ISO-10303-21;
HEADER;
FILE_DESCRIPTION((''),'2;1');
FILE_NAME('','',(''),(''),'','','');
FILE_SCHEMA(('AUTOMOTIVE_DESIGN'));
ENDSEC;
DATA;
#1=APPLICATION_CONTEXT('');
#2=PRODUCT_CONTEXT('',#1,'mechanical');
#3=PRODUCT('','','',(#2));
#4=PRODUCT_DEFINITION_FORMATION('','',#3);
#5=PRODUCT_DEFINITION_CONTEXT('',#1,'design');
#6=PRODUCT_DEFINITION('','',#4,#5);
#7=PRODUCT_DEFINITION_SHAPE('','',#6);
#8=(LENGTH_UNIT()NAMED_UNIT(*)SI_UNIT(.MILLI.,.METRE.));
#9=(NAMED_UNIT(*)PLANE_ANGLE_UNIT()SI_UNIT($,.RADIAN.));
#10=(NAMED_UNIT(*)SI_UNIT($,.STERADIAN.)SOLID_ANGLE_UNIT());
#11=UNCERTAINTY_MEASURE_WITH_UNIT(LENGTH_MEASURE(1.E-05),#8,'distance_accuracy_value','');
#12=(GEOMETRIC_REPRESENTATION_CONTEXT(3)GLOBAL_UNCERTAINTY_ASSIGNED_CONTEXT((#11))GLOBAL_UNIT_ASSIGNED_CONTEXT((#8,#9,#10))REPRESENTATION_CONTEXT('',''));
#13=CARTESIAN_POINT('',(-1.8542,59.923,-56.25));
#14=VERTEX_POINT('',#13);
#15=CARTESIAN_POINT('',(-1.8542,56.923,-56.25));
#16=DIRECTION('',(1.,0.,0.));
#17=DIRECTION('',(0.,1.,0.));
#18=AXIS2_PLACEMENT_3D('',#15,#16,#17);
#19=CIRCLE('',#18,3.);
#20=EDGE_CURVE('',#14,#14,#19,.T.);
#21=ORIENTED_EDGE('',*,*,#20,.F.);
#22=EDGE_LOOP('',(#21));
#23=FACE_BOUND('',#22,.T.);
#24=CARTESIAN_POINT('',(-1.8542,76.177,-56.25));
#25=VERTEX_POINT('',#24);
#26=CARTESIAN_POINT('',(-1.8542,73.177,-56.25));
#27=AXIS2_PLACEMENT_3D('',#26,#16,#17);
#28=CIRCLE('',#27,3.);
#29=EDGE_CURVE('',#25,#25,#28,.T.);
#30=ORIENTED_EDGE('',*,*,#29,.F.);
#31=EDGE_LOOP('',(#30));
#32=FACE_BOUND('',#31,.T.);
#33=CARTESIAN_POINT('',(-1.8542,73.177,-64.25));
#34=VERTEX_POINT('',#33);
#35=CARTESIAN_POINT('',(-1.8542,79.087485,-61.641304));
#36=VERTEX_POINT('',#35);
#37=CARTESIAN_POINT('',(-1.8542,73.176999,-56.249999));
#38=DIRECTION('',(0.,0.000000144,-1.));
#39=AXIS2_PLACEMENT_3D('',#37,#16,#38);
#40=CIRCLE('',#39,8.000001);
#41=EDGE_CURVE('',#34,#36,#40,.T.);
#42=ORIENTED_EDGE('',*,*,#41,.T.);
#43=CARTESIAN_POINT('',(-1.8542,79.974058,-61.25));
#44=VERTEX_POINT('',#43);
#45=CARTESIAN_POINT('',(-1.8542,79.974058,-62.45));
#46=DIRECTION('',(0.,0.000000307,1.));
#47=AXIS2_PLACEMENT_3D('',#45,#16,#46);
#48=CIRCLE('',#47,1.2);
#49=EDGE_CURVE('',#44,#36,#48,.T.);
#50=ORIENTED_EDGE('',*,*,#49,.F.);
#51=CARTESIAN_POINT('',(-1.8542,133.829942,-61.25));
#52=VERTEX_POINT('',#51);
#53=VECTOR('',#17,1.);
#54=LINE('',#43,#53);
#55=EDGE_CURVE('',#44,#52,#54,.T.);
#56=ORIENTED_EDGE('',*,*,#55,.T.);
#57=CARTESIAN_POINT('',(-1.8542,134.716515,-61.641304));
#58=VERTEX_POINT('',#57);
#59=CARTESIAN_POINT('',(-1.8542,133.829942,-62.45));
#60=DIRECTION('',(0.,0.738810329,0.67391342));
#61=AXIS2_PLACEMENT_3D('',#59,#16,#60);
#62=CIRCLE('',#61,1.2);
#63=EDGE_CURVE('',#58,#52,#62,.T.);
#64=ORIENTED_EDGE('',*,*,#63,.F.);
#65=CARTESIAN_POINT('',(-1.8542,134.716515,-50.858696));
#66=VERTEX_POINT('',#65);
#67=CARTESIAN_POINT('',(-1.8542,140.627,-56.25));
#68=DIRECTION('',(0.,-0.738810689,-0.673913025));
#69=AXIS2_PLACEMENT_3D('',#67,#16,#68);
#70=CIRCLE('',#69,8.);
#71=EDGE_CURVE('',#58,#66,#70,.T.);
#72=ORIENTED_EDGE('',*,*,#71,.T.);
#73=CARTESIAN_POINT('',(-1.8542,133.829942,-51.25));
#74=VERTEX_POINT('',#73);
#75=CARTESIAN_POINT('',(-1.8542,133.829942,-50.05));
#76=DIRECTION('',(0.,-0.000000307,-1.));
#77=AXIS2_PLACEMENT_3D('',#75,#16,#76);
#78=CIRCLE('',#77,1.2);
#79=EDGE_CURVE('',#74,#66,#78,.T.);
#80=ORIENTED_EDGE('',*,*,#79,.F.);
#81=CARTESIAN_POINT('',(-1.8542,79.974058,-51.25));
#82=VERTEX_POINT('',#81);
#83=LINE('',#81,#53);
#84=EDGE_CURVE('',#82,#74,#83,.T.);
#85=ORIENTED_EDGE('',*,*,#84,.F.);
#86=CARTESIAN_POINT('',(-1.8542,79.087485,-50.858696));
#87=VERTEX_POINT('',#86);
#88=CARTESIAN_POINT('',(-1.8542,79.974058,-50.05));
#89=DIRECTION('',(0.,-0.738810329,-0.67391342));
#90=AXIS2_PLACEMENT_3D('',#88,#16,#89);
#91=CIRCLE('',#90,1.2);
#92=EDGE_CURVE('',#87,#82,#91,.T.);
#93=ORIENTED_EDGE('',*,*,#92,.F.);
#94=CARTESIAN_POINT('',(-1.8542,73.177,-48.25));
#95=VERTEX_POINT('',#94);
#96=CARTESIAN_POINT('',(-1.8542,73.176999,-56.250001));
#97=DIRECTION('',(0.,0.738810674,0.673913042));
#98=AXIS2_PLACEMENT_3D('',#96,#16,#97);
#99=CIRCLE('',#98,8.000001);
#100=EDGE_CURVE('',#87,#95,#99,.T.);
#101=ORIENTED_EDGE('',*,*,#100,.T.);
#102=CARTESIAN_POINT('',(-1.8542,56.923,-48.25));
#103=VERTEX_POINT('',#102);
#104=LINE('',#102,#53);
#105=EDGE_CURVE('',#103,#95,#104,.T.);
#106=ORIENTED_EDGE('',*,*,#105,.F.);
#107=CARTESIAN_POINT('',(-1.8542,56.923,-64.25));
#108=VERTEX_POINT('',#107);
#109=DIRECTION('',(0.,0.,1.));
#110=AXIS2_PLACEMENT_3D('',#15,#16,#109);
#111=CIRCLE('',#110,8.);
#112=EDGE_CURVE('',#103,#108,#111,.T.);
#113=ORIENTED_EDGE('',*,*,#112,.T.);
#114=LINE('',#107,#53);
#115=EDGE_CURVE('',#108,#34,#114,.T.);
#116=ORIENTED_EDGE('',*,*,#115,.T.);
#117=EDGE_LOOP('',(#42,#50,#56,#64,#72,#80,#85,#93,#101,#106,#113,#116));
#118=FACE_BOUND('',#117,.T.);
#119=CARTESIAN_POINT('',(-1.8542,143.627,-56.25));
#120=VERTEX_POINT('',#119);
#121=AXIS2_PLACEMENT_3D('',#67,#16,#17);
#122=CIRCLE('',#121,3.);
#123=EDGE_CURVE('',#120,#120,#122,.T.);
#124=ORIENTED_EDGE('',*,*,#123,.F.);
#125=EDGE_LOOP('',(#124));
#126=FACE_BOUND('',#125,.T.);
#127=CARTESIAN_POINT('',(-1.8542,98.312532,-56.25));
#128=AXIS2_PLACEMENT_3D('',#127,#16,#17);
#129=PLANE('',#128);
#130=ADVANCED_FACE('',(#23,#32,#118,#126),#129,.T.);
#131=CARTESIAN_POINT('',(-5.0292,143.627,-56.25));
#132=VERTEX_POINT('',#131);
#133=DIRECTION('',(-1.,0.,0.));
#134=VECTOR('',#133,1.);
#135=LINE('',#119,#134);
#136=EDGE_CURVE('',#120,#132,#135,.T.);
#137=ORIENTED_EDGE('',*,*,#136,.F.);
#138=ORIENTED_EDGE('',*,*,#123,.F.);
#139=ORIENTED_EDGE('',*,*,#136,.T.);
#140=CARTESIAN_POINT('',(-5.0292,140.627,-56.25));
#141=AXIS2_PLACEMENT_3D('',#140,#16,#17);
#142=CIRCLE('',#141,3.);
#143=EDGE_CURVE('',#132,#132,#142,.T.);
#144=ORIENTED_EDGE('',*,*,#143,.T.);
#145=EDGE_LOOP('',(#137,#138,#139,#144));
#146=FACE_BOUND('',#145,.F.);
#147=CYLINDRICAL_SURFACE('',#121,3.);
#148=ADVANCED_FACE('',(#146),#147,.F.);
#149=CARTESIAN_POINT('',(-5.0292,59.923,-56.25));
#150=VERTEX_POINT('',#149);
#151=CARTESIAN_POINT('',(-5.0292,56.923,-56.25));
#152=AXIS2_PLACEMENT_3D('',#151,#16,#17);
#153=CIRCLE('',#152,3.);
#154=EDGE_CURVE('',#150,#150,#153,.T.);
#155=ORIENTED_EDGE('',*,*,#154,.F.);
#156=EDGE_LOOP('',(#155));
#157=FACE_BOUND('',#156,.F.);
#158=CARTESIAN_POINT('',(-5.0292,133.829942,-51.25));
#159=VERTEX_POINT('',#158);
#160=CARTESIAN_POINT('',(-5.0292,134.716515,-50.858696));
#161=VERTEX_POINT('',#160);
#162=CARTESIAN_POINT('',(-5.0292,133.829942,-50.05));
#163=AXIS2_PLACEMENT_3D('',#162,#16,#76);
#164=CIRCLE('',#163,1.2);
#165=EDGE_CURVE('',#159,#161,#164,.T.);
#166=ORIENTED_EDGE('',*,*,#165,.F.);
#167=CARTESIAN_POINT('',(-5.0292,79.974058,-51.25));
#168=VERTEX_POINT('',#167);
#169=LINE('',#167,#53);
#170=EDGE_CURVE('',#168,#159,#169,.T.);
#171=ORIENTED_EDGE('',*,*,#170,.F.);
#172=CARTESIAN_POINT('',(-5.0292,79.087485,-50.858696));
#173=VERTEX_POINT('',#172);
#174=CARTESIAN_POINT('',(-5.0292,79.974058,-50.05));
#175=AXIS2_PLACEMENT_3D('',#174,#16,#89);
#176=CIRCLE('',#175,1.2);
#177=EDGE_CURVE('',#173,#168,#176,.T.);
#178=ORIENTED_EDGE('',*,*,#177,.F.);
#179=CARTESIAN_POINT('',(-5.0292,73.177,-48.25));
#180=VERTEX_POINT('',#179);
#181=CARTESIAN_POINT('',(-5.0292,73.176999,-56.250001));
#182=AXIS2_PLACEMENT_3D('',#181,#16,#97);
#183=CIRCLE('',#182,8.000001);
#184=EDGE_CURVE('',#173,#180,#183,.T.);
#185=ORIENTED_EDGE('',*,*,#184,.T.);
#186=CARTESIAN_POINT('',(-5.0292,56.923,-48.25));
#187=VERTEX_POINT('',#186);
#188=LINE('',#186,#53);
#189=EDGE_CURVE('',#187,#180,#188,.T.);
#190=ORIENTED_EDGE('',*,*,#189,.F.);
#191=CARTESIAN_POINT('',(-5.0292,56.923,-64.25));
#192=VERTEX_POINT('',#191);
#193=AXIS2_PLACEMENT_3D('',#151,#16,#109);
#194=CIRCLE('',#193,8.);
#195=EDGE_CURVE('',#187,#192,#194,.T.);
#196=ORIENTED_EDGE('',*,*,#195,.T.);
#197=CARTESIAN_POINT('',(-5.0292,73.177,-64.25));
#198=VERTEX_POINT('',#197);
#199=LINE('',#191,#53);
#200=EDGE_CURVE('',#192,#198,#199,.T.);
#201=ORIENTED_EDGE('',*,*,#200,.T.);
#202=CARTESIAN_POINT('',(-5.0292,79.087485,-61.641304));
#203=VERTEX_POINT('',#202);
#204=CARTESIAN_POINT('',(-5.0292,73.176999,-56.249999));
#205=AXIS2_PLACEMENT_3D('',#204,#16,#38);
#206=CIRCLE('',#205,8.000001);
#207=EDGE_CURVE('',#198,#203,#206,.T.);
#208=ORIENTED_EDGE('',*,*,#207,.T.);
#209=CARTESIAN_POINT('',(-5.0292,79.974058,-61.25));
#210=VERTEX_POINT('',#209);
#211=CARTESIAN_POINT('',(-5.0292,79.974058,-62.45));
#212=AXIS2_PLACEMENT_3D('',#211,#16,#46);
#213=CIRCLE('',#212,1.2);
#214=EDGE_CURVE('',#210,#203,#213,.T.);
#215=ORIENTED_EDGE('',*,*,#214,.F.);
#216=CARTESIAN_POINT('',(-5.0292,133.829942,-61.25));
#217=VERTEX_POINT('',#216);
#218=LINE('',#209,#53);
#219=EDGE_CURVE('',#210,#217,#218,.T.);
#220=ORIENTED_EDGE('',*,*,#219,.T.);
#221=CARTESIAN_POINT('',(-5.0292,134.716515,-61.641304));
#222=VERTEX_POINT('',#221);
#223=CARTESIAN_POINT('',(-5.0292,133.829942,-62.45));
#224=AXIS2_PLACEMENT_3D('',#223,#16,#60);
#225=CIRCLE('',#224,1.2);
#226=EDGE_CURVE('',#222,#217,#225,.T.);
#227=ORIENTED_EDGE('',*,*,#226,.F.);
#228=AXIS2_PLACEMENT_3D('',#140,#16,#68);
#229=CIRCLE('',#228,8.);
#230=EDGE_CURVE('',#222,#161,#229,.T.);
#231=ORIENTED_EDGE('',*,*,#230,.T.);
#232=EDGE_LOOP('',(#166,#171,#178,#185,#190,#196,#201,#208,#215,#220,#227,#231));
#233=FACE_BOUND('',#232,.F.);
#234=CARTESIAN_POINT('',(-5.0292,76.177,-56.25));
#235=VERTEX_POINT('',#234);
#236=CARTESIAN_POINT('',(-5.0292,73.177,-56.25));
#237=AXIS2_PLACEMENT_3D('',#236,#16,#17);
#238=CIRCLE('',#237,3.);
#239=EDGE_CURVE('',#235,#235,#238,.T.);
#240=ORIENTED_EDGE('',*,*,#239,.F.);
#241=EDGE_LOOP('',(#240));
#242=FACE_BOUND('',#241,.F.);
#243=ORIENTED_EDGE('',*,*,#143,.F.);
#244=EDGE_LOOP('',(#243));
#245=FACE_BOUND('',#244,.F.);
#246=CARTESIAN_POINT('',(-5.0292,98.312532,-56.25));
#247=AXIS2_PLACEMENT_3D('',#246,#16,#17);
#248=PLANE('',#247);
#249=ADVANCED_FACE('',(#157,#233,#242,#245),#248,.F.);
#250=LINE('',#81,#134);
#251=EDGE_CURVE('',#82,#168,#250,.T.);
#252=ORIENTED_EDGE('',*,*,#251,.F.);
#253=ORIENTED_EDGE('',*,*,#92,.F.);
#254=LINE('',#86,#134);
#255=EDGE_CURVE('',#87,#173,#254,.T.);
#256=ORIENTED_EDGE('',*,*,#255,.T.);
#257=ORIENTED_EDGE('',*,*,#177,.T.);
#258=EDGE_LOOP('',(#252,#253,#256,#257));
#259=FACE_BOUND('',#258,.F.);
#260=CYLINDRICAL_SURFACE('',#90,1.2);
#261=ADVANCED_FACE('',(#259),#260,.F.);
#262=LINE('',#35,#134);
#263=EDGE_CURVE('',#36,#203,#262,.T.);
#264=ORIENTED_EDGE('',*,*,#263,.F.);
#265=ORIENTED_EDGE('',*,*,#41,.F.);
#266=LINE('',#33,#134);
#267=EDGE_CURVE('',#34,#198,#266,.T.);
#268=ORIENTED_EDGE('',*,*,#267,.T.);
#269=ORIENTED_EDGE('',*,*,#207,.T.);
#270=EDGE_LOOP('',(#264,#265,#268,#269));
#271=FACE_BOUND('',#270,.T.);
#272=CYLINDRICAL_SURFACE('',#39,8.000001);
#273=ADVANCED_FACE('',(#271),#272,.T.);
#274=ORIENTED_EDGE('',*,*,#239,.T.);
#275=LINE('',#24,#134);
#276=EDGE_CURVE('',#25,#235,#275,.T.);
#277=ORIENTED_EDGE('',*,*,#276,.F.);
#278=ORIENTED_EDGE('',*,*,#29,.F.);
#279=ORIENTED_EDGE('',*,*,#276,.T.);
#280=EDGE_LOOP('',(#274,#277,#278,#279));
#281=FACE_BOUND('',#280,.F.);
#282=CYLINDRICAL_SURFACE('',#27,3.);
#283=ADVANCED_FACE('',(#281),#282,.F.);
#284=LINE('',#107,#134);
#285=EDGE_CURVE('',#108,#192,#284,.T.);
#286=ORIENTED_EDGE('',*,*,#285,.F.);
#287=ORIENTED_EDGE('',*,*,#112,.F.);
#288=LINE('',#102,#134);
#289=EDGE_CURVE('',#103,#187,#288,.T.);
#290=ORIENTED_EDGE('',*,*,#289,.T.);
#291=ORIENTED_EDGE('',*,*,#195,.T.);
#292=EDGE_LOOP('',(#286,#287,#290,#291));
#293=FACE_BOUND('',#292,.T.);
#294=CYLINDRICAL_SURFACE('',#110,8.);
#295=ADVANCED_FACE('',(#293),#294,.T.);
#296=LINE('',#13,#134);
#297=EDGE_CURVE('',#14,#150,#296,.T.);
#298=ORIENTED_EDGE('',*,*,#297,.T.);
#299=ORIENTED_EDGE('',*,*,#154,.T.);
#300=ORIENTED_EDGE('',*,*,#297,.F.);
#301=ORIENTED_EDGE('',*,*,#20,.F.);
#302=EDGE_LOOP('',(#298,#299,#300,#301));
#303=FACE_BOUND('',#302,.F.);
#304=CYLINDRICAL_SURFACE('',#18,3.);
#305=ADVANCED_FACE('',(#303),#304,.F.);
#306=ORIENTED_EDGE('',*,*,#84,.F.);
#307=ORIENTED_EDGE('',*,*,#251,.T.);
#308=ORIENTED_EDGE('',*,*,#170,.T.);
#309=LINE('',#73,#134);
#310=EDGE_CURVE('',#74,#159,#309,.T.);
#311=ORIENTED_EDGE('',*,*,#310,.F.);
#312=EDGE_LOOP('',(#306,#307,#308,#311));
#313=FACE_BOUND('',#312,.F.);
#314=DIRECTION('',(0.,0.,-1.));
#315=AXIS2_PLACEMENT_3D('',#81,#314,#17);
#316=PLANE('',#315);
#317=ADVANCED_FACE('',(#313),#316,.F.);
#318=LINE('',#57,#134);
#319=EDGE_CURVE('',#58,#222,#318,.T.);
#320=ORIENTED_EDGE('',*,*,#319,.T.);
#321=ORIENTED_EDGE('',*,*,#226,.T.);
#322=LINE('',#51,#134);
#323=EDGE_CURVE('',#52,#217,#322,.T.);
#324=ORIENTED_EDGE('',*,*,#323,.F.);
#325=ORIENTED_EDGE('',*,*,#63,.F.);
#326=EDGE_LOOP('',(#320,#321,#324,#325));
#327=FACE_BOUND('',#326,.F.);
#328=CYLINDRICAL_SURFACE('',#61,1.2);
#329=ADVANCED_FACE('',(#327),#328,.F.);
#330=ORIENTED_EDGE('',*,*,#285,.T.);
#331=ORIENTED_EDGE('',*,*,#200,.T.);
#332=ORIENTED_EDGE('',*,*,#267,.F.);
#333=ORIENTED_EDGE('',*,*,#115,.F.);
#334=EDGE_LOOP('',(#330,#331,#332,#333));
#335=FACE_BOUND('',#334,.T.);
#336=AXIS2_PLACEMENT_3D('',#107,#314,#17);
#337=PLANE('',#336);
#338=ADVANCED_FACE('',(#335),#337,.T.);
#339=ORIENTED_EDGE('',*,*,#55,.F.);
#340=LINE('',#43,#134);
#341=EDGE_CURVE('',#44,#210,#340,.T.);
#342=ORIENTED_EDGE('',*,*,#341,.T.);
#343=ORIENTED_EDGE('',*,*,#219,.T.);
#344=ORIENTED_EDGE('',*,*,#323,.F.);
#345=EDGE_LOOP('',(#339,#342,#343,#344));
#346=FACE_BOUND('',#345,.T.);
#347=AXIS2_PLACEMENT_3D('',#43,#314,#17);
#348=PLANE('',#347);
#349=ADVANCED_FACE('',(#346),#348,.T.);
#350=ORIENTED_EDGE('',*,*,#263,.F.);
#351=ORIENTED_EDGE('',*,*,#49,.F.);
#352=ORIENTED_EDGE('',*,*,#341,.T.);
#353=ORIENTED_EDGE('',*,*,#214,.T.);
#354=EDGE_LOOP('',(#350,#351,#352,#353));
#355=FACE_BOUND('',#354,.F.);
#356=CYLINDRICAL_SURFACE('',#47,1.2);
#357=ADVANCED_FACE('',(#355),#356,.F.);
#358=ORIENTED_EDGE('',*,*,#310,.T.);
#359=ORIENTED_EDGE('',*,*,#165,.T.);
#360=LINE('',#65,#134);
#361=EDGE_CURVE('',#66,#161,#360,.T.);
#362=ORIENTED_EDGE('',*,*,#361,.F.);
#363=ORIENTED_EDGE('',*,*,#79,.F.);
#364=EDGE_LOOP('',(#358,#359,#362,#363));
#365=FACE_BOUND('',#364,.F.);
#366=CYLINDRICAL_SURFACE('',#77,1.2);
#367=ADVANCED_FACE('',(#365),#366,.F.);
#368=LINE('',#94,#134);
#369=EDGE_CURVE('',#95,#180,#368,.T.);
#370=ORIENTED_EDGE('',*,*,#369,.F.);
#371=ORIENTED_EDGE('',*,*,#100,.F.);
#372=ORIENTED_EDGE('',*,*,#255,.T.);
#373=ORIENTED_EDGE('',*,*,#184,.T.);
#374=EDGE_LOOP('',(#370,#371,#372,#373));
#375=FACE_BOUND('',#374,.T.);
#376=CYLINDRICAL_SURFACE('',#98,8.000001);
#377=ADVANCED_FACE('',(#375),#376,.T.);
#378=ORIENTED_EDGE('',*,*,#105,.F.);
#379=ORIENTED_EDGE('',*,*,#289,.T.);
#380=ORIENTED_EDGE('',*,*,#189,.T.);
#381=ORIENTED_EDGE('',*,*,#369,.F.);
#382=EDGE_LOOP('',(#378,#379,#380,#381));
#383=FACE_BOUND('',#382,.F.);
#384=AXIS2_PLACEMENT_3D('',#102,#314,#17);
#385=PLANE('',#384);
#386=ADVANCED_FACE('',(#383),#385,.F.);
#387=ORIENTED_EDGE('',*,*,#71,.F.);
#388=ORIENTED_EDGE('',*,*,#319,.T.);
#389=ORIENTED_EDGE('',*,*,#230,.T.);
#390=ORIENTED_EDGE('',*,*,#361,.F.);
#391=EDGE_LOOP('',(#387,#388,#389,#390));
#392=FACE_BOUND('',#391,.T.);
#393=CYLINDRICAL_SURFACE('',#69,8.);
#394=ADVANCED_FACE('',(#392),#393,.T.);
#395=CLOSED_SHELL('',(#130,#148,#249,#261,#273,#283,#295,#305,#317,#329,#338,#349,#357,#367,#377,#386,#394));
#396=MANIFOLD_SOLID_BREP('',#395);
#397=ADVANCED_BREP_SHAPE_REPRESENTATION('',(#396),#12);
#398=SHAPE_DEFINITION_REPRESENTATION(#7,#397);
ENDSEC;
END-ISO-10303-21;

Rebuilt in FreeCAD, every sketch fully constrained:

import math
import FreeCAD as App
import Part
import Sketcher
Q = App.Units.Quantity

doc = App.newDocument("Part")
body = doc.addObject("PartDesign::Body", "Body")

# Sketch on YZ plane
sketch1 = body.newObject("Sketcher::SketchObject", "Sketch")
sketch1.AttachmentSupport = (doc.getObject("YZ_Plane"), [""])
sketch1.MapMode = "FlatFace"
sketch1.AttachmentOffset = App.Placement(App.Vector(0, 0, -1.8542), App.Rotation())
sketch1.addGeometry(Part.ArcOfCircle(Part.Circle(App.Vector(56.9, -56.2, 0), App.Vector(0, 0, 1), 8), math.radians(90), math.radians(270)), False)
sketch1.addGeometry(Part.LineSegment(App.Vector(56.9, -64.2, 0), App.Vector(73.2, -64.2, 0)), False)
sketch1.addGeometry(Part.ArcOfCircle(Part.Circle(App.Vector(73.2, -56.2, 0), App.Vector(0, 0, 1), 8), math.radians(-90), math.radians(-42)), False)
sketch1.addGeometry(Part.ArcOfCircle(Part.Circle(App.Vector(80, -62.5, 0), App.Vector(0, 0, 1), 1.2), math.radians(90), math.radians(138)), False)
sketch1.addGeometry(Part.LineSegment(App.Vector(80, -61.2, 0), App.Vector(133.8, -61.2, 0)), False)
sketch1.addGeometry(Part.ArcOfCircle(Part.Circle(App.Vector(133.8, -62.5, 0), App.Vector(0, 0, 1), 1.2), math.radians(42), math.radians(90)), False)
sketch1.addGeometry(Part.ArcOfCircle(Part.Circle(App.Vector(140.6, -56.2, 0), App.Vector(0, 0, 1), 8), math.radians(-138), math.radians(138)), False)
sketch1.addGeometry(Part.ArcOfCircle(Part.Circle(App.Vector(133.8, -50, 0), App.Vector(0, 0, 1), 1.2), math.radians(-90), math.radians(-42)), False)
sketch1.addGeometry(Part.LineSegment(App.Vector(133.8, -51.2, 0), App.Vector(80, -51.2, 0)), False)
sketch1.addGeometry(Part.ArcOfCircle(Part.Circle(App.Vector(80, -50, 0), App.Vector(0, 0, 1), 1.2), math.radians(-138), math.radians(-90)), False)
sketch1.addGeometry(Part.ArcOfCircle(Part.Circle(App.Vector(73.2, -56.3, 0), App.Vector(0, 0, 1), 8), math.radians(42), math.radians(90)), False)
sketch1.addGeometry(Part.LineSegment(App.Vector(73.2, -48.2, 0), App.Vector(56.9, -48.2, 0)), False)
sketch1.addGeometry(Part.Circle(App.Vector(56.9, -56.2, 0), App.Vector(0, 0, 1), 3), False)
sketch1.addGeometry(Part.Circle(App.Vector(73.2, -56.2, 0), App.Vector(0, 0, 1), 3), False)
sketch1.addGeometry(Part.Circle(App.Vector(140.6, -56.2, 0), App.Vector(0, 0, 1), 3), False)
sketch1.addConstraint(Sketcher.Constraint("Tangent", 0, 2, 1, 1))
sketch1.addConstraint(Sketcher.Constraint("Tangent", 1, 2, 2, 1))
sketch1.addConstraint(Sketcher.Constraint("Tangent", 2, 2, 3, 2))
sketch1.addConstraint(Sketcher.Constraint("Tangent", 3, 1, 4, 1))
sketch1.addConstraint(Sketcher.Constraint("Tangent", 4, 2, 5, 2))
sketch1.addConstraint(Sketcher.Constraint("Tangent", 5, 1, 6, 1))
sketch1.addConstraint(Sketcher.Constraint("Tangent", 6, 2, 7, 2))
sketch1.addConstraint(Sketcher.Constraint("Tangent", 7, 1, 8, 1))
sketch1.addConstraint(Sketcher.Constraint("Tangent", 8, 2, 9, 2))
sketch1.addConstraint(Sketcher.Constraint("Tangent", 9, 1, 10, 1))
sketch1.addConstraint(Sketcher.Constraint("Tangent", 10, 2, 11, 1))
sketch1.addConstraint(Sketcher.Constraint("Tangent", 11, 2, 0, 1))
sketch1.addConstraint(Sketcher.Constraint("Horizontal", 1))
sketch1.addConstraint(Sketcher.Constraint("Horizontal", 4))
sketch1.addConstraint(Sketcher.Constraint("Horizontal", 8))
sketch1.addConstraint(Sketcher.Constraint("Horizontal", 11))
sketch1.addConstraint(Sketcher.Constraint("Coincident", 10, 3, 2, 3))
sketch1.addConstraint(Sketcher.Constraint("Coincident", 12, 3, 0, 3))
sketch1.addConstraint(Sketcher.Constraint("Coincident", 13, 3, 2, 3))
sketch1.addConstraint(Sketcher.Constraint("Coincident", 14, 3, 6, 3))
sketch1.addConstraint(Sketcher.Constraint("Equal", 0, 2))
sketch1.addConstraint(Sketcher.Constraint("Equal", 3, 5))
sketch1.addConstraint(Sketcher.Constraint("Equal", 2, 6))
sketch1.addConstraint(Sketcher.Constraint("Equal", 5, 7))
sketch1.addConstraint(Sketcher.Constraint("Equal", 7, 9))
sketch1.addConstraint(Sketcher.Constraint("Equal", 12, 13))
sketch1.addConstraint(Sketcher.Constraint("Equal", 13, 14))
sketch1.addConstraint(Sketcher.Constraint("Horizontal", 2, 3, 6, 3))
sketch1.addConstraint(Sketcher.Constraint("Vertical", 5, 3, 7, 3))
sketch1.addConstraint(Sketcher.Constraint("Diameter", 12, Q("6 mm")))
sketch1.addConstraint(Sketcher.Constraint("Radius", 0, Q("8 mm")))
sketch1.addConstraint(Sketcher.Constraint("Radius", 3, Q("1.2 mm")))
sketch1.addConstraint(Sketcher.Constraint("DistanceY", 1, 2, 3, 1, Q("3 mm")))
sketch1.addConstraint(Sketcher.Constraint("DistanceX", 1, 1, 1, 2, Q("16.254 mm")))
sketch1.addConstraint(Sketcher.Constraint("DistanceY", 0, 3, -1, 1, Q("56.25 mm")))
sketch1.addConstraint(Sketcher.Constraint("DistanceX", 2, 3, 6, 3, Q("67.450001 mm")))
sketch1.addConstraint(Sketcher.Constraint("DistanceX", -1, 1, 0, 3, Q("56.923 mm")))
pad1 = body.newObject("PartDesign::Pad", "Pad")
pad1.Profile = sketch1
pad1.Length = 3.175
pad1.Reversed = True

doc.recompute()
